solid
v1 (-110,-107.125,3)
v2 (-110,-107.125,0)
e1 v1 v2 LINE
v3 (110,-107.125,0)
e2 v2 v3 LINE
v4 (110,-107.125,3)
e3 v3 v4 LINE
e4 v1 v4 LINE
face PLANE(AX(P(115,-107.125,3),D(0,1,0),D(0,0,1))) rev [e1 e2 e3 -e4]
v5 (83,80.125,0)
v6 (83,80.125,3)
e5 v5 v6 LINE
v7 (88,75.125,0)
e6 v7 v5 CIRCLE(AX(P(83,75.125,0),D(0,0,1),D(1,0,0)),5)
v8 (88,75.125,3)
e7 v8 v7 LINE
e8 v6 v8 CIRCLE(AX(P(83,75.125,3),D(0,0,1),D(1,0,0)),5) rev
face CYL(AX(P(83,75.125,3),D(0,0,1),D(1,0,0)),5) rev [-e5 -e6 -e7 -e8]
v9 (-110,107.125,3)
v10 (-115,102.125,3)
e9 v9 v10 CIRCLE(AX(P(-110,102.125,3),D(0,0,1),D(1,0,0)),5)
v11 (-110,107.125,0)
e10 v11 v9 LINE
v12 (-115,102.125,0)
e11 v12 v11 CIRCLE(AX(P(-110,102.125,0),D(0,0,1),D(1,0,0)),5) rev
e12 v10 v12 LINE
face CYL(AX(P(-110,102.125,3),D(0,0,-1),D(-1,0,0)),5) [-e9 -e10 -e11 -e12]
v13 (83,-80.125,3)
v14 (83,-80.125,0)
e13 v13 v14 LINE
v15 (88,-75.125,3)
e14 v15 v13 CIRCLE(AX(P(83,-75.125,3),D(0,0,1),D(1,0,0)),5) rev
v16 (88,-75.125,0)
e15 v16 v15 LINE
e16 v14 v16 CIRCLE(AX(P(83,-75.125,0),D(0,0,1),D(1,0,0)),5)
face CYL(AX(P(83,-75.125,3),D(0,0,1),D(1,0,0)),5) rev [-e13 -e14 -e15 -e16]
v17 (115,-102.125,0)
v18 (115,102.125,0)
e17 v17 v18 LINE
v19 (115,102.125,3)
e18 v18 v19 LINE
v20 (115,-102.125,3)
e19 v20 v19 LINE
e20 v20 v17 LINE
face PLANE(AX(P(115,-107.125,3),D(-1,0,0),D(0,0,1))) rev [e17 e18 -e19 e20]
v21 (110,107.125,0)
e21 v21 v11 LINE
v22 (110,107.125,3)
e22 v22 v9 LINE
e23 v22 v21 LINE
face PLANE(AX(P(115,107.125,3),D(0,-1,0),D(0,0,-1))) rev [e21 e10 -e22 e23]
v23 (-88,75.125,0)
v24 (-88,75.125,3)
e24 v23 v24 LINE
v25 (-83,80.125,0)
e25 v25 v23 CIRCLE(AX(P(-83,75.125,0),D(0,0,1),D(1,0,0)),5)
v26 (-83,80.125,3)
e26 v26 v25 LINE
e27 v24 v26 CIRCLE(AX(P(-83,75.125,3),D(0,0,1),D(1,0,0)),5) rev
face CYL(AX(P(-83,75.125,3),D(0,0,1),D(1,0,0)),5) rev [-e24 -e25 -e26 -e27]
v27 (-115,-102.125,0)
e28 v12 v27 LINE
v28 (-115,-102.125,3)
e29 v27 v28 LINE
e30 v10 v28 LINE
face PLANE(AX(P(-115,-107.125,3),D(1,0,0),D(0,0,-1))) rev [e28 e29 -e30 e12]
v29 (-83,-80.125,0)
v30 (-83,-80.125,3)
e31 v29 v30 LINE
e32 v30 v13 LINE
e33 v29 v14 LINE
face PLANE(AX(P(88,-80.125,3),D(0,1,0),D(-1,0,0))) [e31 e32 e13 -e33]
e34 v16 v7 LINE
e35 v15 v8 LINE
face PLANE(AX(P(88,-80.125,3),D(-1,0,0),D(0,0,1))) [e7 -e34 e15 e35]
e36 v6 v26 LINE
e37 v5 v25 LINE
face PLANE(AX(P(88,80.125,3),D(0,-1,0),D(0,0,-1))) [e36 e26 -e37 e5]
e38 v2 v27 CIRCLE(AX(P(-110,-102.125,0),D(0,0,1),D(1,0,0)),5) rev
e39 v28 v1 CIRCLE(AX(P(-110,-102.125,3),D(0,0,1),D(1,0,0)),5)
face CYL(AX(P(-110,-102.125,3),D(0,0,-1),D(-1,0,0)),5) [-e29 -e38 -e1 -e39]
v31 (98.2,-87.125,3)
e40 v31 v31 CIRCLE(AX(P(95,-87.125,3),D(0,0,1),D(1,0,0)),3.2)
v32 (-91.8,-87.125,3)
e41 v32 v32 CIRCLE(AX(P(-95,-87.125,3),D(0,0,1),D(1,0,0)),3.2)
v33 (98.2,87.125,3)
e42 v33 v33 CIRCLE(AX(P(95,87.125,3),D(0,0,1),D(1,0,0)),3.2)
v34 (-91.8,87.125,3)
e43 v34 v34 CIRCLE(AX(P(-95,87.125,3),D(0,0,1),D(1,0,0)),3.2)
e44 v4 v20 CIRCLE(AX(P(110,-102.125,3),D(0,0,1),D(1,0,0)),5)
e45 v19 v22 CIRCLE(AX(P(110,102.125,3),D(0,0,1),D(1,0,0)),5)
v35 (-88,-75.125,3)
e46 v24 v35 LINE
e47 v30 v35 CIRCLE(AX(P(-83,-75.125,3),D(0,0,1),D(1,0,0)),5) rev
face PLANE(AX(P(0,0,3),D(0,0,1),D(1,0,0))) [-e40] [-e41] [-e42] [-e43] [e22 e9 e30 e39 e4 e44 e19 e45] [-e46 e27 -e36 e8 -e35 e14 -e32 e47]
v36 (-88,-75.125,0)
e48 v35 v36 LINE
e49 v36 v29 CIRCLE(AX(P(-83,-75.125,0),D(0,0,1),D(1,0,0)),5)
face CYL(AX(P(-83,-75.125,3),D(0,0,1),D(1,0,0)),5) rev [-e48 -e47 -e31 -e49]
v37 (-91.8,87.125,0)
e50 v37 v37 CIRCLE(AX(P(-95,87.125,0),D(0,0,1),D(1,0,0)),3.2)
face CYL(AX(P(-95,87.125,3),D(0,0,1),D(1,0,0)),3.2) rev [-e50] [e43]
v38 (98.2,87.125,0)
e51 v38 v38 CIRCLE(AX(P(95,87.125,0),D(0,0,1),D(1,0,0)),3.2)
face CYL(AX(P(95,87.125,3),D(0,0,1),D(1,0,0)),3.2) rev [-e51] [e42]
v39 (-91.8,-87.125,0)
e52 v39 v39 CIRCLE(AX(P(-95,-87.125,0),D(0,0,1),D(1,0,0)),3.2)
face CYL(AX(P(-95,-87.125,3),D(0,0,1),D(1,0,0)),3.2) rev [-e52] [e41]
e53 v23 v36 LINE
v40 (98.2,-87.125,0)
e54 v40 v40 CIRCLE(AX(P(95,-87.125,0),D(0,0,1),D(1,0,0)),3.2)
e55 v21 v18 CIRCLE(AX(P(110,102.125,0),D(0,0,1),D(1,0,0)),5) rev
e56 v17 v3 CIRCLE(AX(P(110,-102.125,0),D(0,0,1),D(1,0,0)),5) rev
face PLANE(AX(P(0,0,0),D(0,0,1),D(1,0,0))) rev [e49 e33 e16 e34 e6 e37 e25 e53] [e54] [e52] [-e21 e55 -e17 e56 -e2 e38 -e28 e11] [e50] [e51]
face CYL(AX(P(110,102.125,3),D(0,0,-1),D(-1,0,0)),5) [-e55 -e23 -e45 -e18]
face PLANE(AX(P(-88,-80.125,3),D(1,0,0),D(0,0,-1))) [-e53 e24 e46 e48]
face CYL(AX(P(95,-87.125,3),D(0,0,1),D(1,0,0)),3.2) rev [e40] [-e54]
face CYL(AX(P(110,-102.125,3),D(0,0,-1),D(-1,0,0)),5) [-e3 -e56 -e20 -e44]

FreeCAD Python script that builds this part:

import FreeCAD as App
import Part
import Sketcher

V = App.Vector
Q = App.Units.Quantity


def edges_at(feature, points):
    """Names of the edges that pass closest to the given points."""
    edges = feature.Shape.Edges
    near = lambda p: min(range(len(edges)), key=lambda i: edges[i].distToShape(Part.Vertex(*p))[0])
    return sorted({f"Edge{near(p) + 1}" for p in points})

doc = App.newDocument("Part")
params = doc.addObject("Spreadsheet::Sheet", "Params")
for row, (alias, value) in enumerate([
    ("sketch1_width", "230 mm"),
    ("sketch1_width2", "176 mm"),
    ("sketch1_height", "214.25 mm"),
    ("pad1_length", "3 mm"),
    ("fillet_radius", "5 mm"),
    ("sketch2_diameter", "6.4 mm"),
    ("hole_diameter", "6.4 mm"),
    ("hole_depth", "3 mm"),
], start=1):
    params.set(f"A{row}", alias)
    params.set(f"B{row}", "=" + value)
    params.setAlias(f"B{row}", alias)

body = doc.addObject("PartDesign::Body", "Body")

# Sketch on XY plane
sketch1 = doc.addObject("Sketcher::SketchObject", "Sketch")
body.addObject(sketch1)
sketch1.AttachmentSupport = (doc.XY_Plane, [""])
sketch1.MapMode = "FlatFace"
sketch1.addGeometry([
    Part.LineSegment(V(-115, 107, 0), V(-115, -107, 0)),  # 0
    Part.LineSegment(V(-115, -107, 0), V(115, -107, 0)),  # 1
    Part.LineSegment(V(115, -107, 0), V(115, 107, 0)),  # 2
    Part.LineSegment(V(115, 107, 0), V(-115, 107, 0)),  # 3
    Part.LineSegment(V(88, -80, 0), V(-88, -80, 0)),  # 4
    Part.LineSegment(V(-88, -80, 0), V(-88, 80, 0)),  # 5
    Part.LineSegment(V(-88, 80, 0), V(88, 80, 0)),  # 6
    Part.LineSegment(V(88, 80, 0), V(88, -80, 0)),  # 7
], False)
sketch1.addConstraint([
    Sketcher.Constraint("Coincident", 0, 2, 1, 1),
    Sketcher.Constraint("Coincident", 1, 2, 2, 1),
    Sketcher.Constraint("Coincident", 2, 2, 3, 1),
    Sketcher.Constraint("Coincident", 3, 2, 0, 1),
    Sketcher.Constraint("Coincident", 4, 2, 5, 1),
    Sketcher.Constraint("Coincident", 5, 2, 6, 1),
    Sketcher.Constraint("Coincident", 6, 2, 7, 1),
    Sketcher.Constraint("Coincident", 7, 2, 4, 1),
    Sketcher.Constraint("Vertical", 0),
    Sketcher.Constraint("Horizontal", 1),
    Sketcher.Constraint("Vertical", 2),
    Sketcher.Constraint("Horizontal", 3),
    Sketcher.Constraint("Horizontal", 4),
    Sketcher.Constraint("Vertical", 5),
    Sketcher.Constraint("Horizontal", 6),
    Sketcher.Constraint("Vertical", 7),
    Sketcher.Constraint("Symmetric", 0, 2, 2, 2, -1, 1),
    Sketcher.Constraint("Symmetric", 4, 2, 6, 2, -1, 1),
    Sketcher.Constraint("DistanceX", 1, 1, 1, 2, Q("230 mm")),
    Sketcher.Constraint("DistanceX", 4, 2, 4, 1, Q("176 mm")),
    Sketcher.Constraint("DistanceY", 0, 2, 4, 2, Q("27 mm")),
    Sketcher.Constraint("DistanceY", 0, 2, 0, 1, Q("214.25 mm")),
])
sketch1.setExpression("Constraints[18]", "Params.sketch1_width")
sketch1.setExpression("Constraints[19]", "Params.sketch1_width2")
sketch1.setExpression("Constraints[21]", "Params.sketch1_height")
pad1 = doc.addObject("PartDesign::Pad", "Pad")
body.addObject(pad1)
pad1.Profile = sketch1
pad1.setExpression("Length", "Params.pad1_length")
doc.recompute()

fillet = doc.addObject("PartDesign::Fillet", "Fillet")
body.addObject(fillet)
fillet.Base = (pad1, edges_at(pad1, [
    (-88, 80.125, 1.5),
    (-88, -80.125, 1.5),
    (88, -80.125, 1.5),
    (88, 80.125, 1.5),
    (-115, 107.125, 1.5),
    (115, 107.125, 1.5),
    (115, -107.125, 1.5),
    (-115, -107.125, 1.5),
]))
fillet.setExpression("Radius", "Params.fillet_radius")

# Sketch on XY plane
sketch2 = doc.addObject("Sketcher::SketchObject", "Sketch001")
body.addObject(sketch2)
sketch2.AttachmentSupport = (doc.XY_Plane, [""])
sketch2.MapMode = "FlatFace"
sketch2.AttachmentOffset = App.Placement(V(0, 0, 3), App.Rotation())
sketch2.addGeometry([
    Part.Circle(V(-95, 87.1, 0), V(0, 0, 1), 3.2),
    Part.Circle(V(95, 87.1, 0), V(0, 0, 1), 3.2),
    Part.Circle(V(95, -87.1, 0), V(0, 0, 1), 3.2),
    Part.Circle(V(-95, -87.1, 0), V(0, 0, 1), 3.2),
], False)
sketch2.addConstraint([
    Sketcher.Constraint("Equal", 0, 1),
    Sketcher.Constraint("Equal", 1, 2),
    Sketcher.Constraint("Equal", 2, 3),
    Sketcher.Constraint("Symmetric", 0, 3, 2, 3, -1, 1),
    Sketcher.Constraint("Symmetric", 1, 3, 3, 3, -1, 1),
    Sketcher.Constraint("Symmetric", 0, 3, 1, 3, -2),
    Sketcher.Constraint("Diameter", 0, Q("6.4 mm")),
    Sketcher.Constraint("DistanceX", 0, 3, -1, 1, Q("95 mm")),
    Sketcher.Constraint("DistanceY", 2, 3, 1, 3, Q("174.25 mm")),
])
sketch2.setExpression("Constraints[6]", "Params.sketch2_diameter")
doc.recompute()
hole = doc.addObject("PartDesign::Hole", "Hole")
body.addObject(hole)
hole.Profile = sketch2
hole.ThreadType = "None"
hole.setExpression("Diameter", "Params.hole_diameter")
hole.DepthType = "Dimension"
hole.setExpression("Depth", "Params.hole_depth")
hole.DrillPoint = "Flat"

doc.recompute()
